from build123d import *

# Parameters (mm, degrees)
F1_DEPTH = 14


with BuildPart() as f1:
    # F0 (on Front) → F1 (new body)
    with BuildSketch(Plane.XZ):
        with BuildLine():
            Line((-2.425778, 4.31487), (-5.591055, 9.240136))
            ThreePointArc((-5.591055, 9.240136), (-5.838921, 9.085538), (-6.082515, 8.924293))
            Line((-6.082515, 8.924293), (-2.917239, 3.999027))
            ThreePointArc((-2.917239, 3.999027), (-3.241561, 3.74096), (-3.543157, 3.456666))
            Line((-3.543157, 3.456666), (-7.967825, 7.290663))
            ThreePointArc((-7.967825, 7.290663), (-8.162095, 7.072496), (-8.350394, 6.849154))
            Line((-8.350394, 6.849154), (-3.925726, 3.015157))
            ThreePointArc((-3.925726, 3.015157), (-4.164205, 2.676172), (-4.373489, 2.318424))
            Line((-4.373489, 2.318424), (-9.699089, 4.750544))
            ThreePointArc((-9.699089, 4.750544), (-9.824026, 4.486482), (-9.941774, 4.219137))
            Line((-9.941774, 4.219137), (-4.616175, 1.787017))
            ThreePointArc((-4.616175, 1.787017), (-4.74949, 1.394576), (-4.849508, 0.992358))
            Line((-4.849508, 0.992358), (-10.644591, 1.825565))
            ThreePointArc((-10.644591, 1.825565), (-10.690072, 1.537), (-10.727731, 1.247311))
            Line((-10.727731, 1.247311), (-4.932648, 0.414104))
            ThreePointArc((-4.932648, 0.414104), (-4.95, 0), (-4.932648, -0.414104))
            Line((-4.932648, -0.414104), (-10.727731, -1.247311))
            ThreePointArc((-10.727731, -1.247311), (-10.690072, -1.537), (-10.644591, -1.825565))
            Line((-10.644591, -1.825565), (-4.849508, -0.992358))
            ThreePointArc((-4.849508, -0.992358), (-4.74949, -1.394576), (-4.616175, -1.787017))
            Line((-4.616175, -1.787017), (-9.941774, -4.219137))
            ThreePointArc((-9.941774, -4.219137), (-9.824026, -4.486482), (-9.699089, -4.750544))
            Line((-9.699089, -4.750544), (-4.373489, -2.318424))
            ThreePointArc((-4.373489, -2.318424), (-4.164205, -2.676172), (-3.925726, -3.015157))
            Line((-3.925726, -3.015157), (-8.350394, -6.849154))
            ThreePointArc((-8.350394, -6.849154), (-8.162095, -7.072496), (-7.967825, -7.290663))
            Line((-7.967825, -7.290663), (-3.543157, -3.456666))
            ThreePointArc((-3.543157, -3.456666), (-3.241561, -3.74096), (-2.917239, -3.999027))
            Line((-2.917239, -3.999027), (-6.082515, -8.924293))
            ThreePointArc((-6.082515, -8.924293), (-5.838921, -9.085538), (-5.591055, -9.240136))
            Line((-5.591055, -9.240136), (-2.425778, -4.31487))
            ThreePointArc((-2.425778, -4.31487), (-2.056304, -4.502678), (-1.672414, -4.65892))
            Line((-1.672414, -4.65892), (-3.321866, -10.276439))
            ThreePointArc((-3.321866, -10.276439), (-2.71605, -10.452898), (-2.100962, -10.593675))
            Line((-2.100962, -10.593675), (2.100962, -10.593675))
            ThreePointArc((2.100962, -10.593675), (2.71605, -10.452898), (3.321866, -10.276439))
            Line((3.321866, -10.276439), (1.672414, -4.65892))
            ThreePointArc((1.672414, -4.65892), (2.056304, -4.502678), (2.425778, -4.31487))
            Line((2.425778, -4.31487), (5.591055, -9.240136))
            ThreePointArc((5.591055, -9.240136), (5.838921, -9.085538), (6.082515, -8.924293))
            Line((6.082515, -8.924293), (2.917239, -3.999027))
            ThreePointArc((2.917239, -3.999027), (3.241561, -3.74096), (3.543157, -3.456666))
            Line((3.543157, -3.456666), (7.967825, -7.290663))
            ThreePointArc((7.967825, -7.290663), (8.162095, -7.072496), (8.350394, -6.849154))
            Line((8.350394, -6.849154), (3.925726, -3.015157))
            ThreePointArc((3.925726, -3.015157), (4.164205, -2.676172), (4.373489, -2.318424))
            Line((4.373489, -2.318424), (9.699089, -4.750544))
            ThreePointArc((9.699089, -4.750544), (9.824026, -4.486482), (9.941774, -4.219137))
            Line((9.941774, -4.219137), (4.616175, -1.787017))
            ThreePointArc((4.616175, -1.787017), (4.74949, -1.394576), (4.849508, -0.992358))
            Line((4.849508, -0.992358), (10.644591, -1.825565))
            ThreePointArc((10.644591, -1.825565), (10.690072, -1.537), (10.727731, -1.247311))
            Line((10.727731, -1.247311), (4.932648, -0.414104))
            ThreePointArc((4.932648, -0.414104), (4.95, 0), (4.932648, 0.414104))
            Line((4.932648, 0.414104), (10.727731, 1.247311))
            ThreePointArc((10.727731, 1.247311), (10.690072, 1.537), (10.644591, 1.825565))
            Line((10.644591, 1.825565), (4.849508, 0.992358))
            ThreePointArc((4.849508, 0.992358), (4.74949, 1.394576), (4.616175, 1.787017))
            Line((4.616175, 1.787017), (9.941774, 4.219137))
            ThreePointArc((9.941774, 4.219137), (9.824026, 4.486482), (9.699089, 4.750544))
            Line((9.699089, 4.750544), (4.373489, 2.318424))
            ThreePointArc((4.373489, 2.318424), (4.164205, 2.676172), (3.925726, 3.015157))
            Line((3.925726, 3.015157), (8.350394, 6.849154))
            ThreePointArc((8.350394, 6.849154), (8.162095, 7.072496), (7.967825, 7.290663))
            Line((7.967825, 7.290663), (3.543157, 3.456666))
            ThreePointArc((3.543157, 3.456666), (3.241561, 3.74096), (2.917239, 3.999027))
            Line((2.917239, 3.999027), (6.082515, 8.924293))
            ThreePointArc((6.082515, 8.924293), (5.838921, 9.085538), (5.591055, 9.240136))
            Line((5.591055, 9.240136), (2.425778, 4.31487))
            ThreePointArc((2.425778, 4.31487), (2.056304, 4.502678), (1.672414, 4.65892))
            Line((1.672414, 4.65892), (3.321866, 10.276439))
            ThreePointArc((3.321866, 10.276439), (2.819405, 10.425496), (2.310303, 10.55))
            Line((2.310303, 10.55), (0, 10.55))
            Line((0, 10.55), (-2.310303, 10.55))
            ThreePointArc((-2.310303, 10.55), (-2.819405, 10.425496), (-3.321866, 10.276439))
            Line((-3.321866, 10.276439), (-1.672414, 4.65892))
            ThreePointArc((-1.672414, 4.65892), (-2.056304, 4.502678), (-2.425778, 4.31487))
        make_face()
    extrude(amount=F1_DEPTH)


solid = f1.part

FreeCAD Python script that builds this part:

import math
import FreeCAD as App
import Part
import Sketcher

doc = App.newDocument("Part")
params = doc.addObject("Spreadsheet::Sheet", "Params")
for row, (alias, value) in enumerate([
    ("pad1_length", "14 mm"),
], start=1):
    params.set(f"A{row}", alias)
    params.set(f"B{row}", "=" + value)
    params.setAlias(f"B{row}", alias)

body = doc.addObject("PartDesign::Body", "Body")

sketch1 = doc.addObject("Sketcher::SketchObject", "Sketch")
body.addObject(sketch1)
sketch1.AttachmentSupport = (doc.XZ_Plane, [""])
sketch1.MapMode = "FlatFace"
sketch1.addGeometry(Part.LineSegment(App.Vector(-2.425778, 4.31487, 0), App.Vector(-5.591055, 9.240136, 0)), False)
sketch1.addGeometry(Part.ArcOfCircle(Part.Circle(App.Vector(0.000189, -0.00027, 0), App.Vector(0, 0, 1), 10.800329), math.radians(121.177561), math.radians(124.277122)), False)
sketch1.addGeometry(Part.LineSegment(App.Vector(-6.082515, 8.924293, 0), App.Vector(-2.917239, 3.999027, 0)), False)
sketch1.addGeometry(Part.ArcOfCircle(Part.Circle(App.Vector(0.000026, -0.000031, 0), App.Vector(0, 0, 1), 4.950041), math.radians(126.110304), math.radians(135.707874)), False)
sketch1.addGeometry(Part.LineSegment(App.Vector(-3.543157, 3.456666, 0), App.Vector(-7.967825, 7.290663, 0)), False)
sketch1.addGeometry(Part.ArcOfCircle(Part.Circle(App.Vector(0.000187, -0.000148, 0), App.Vector(0, 0, 1), 10.800238), math.radians(137.54117), math.radians(140.640755)), False)
sketch1.addGeometry(Part.LineSegment(App.Vector(-8.350394, 6.849154, 0), App.Vector(-3.925726, 3.015157, 0)), False)
sketch1.addGeometry(Part.ArcOfCircle(Part.Circle(App.Vector(-0.00009, 0.000058, 0), App.Vector(0, 0, 1), 4.949892), math.radians(142.473806), math.radians(152.071662)), False)
sketch1.addGeometry(Part.LineSegment(App.Vector(-4.373489, 2.318424, 0), App.Vector(-9.699089, 4.750544, 0)), False)
sketch1.addGeometry(Part.ArcOfCircle(Part.Circle(App.Vector(-0.001847, 0.000852, 0), App.Vector(0, 0, 1), 10.797966), math.radians(153.904466), math.radians(157.004704)), False)
sketch1.addGeometry(Part.LineSegment(App.Vector(-9.941774, 4.219137, 0), App.Vector(-4.616175, 1.787017, 0)), False)
sketch1.addGeometry(Part.ArcOfCircle(Part.Circle(App.Vector(0.00012, -0.000036, 0), App.Vector(0, 0, 1), 4.950125), math.radians(158.837662), math.radians(168.435057)), False)
sketch1.addGeometry(Part.LineSegment(App.Vector(-4.849508, 0.992358, 0), App.Vector(-10.644591, 1.825565, 0)), False)
sketch1.addGeometry(Part.ArcOfCircle(Part.Circle(App.Vector(-0.000905, 0.000137, 0), App.Vector(0, 0, 1), 10.799085), math.radians(170.268258), math.radians(173.368178)), False)
sketch1.addGeometry(Part.LineSegment(App.Vector(-10.727731, 1.247311, 0), App.Vector(-4.932648, 0.414104, 0)), False)
sketch1.addGeometry(Part.ArcOfCircle(Part.Circle(App.Vector(-0.000046, 0, 0), App.Vector(0, 0, 1), 4.949954), math.radians(175.201133), math.radians(184.798867)), False)
sketch1.addGeometry(Part.LineSegment(App.Vector(-4.932648, -0.414104, 0), App.Vector(-10.727731, -1.247311, 0)), False)
sketch1.addGeometry(Part.ArcOfCircle(Part.Circle(App.Vector(-0.000905, -0.000137, 0), App.Vector(0, 0, 1), 10.799085), math.radians(-173.368178), math.radians(-170.268258)), False)
sketch1.addGeometry(Part.LineSegment(App.Vector(-10.644591, -1.825565, 0), App.Vector(-4.849508, -0.992358, 0)), False)
sketch1.addGeometry(Part.ArcOfCircle(Part.Circle(App.Vector(0.00012, 0.000036, 0), App.Vector(0, 0, 1), 4.950125), math.radians(-168.435057), math.radians(-158.837662)), False)
sketch1.addGeometry(Part.LineSegment(App.Vector(-4.616175, -1.787017, 0), App.Vector(-9.941774, -4.219137, 0)), False)
sketch1.addGeometry(Part.ArcOfCircle(Part.Circle(App.Vector(-0.001847, -0.000852, 0), App.Vector(0, 0, 1), 10.797966), math.radians(-157.004704), math.radians(-153.904466)), False)
sketch1.addGeometry(Part.LineSegment(App.Vector(-9.699089, -4.750544, 0), App.Vector(-4.373489, -2.318424, 0)), False)
sketch1.addGeometry(Part.ArcOfCircle(Part.Circle(App.Vector(-0.00009, -0.000058, 0), App.Vector(0, 0, 1), 4.949892), math.radians(-152.071662), math.radians(-142.473806)), False)
sketch1.addGeometry(Part.LineSegment(App.Vector(-3.925726, -3.015157, 0), App.Vector(-8.350394, -6.849154, 0)), False)
sketch1.addGeometry(Part.ArcOfCircle(Part.Circle(App.Vector(0.000187, 0.000148, 0), App.Vector(0, 0, 1), 10.800238), math.radians(-140.640755), math.radians(-137.54117)), False)
sketch1.addGeometry(Part.LineSegment(App.Vector(-7.967825, -7.290663, 0), App.Vector(-3.543157, -3.456666, 0)), False)
sketch1.addGeometry(Part.ArcOfCircle(Part.Circle(App.Vector(0.000026, 0.000031, 0), App.Vector(0, 0, 1), 4.950041), math.radians(-135.707874), math.radians(-126.110304)), False)
sketch1.addGeometry(Part.LineSegment(App.Vector(-2.917239, -3.999027, 0), App.Vector(-6.082515, -8.924293, 0)), False)
sketch1.addGeometry(Part.ArcOfCircle(Part.Circle(App.Vector(0.000189, 0.00027, 0), App.Vector(0, 0, 1), 10.800329), math.radians(-124.277122), math.radians(-121.177561)), False)
sketch1.addGeometry(Part.LineSegment(App.Vector(-5.591055, -9.240136, 0), App.Vector(-2.425778, -4.31487, 0)), False)
sketch1.addGeometry(Part.ArcOfCircle(Part.Circle(App.Vector(0.000094, 0.000203, 0), App.Vector(0, 0, 1), 4.950224), math.radians(-119.34407), math.radians(-109.746863)), False)
sketch1.addGeometry(Part.LineSegment(App.Vector(-1.672414, -4.65892, 0), App.Vector(-3.321866, -10.276439, 0)), False)
sketch1.addGeometry(Part.ArcOfCircle(Part.Circle(App.Vector(-0.000085, -0.000326, 0), App.Vector(0, 0, 1), 10.799663), math.radians(-107.913565), math.radians(-101.217369)), False)
sketch1.addGeometry(Part.LineSegment(App.Vector(-2.100962, -10.593675, 0), App.Vector(2.100962, -10.593675, 0)), False)
sketch1.addGeometry(Part.ArcOfCircle(Part.Circle(App.Vector(0.000085, -0.000326, 0), App.Vector(0, 0, 1), 10.799663), math.radians(-78.782631), math.radians(-72.086435)), False)
sketch1.addGeometry(Part.LineSegment(App.Vector(3.321866, -10.276439, 0), App.Vector(1.672414, -4.65892, 0)), False)
sketch1.addGeometry(Part.ArcOfCircle(Part.Circle(App.Vector(-0.000094, 0.000203, 0), App.Vector(0, 0, 1), 4.950224), math.radians(-70.253137), math.radians(-60.65593)), False)
sketch1.addGeometry(Part.LineSegment(App.Vector(2.425778, -4.31487, 0), App.Vector(5.591055, -9.240136, 0)), False)
sketch1.addGeometry(Part.ArcOfCircle(Part.Circle(App.Vector(-0.000189, 0.00027, 0), App.Vector(0, 0, 1), 10.800329), math.radians(-58.822439), math.radians(-55.722878)), False)
sketch1.addGeometry(Part.LineSegment(App.Vector(6.082515, -8.924293, 0), App.Vector(2.917239, -3.999027, 0)), False)
sketch1.addGeometry(Part.ArcOfCircle(Part.Circle(App.Vector(-0.000026, 0.000031, 0), App.Vector(0, 0, 1), 4.950041), math.radians(-53.889696), math.radians(-44.292126)), False)
sketch1.addGeometry(Part.LineSegment(App.Vector(3.543157, -3.456666, 0), App.Vector(7.967825, -7.290663, 0)), False)
sketch1.addGeometry(Part.ArcOfCircle(Part.Circle(App.Vector(-0.000187, 0.000148, 0), App.Vector(0, 0, 1), 10.800238), math.radians(-42.45883), math.radians(-39.359245)), False)
sketch1.addGeometry(Part.LineSegment(App.Vector(8.350394, -6.849154, 0), App.Vector(3.925726, -3.015157, 0)), False)
sketch1.addGeometry(Part.ArcOfCircle(Part.Circle(App.Vector(0.00009, -0.000058, 0), App.Vector(0, 0, 1), 4.949892), math.radians(-37.526194), math.radians(-27.928338)), False)
sketch1.addGeometry(Part.LineSegment(App.Vector(4.373489, -2.318424, 0), App.Vector(9.699089, -4.750544, 0)), False)
sketch1.addGeometry(Part.ArcOfCircle(Part.Circle(App.Vector(0.001847, -0.000852, 0), App.Vector(0, 0, 1), 10.797966), math.radians(-26.095534), math.radians(-22.995296)), False)
sketch1.addGeometry(Part.LineSegment(App.Vector(9.941774, -4.219137, 0), App.Vector(4.616175, -1.787017, 0)), False)
sketch1.addGeometry(Part.ArcOfCircle(Part.Circle(App.Vector(-0.00012, 0.000036, 0), App.Vector(0, 0, 1), 4.950125), math.radians(-21.162338), math.radians(-11.564943)), False)
sketch1.addGeometry(Part.LineSegment(App.Vector(4.849508, -0.992358, 0), App.Vector(10.644591, -1.825565, 0)), False)
sketch1.addGeometry(Part.ArcOfCircle(Part.Circle(App.Vector(0.000905, -0.000137, 0), App.Vector(0, 0, 1), 10.799085), math.radians(-9.731742), math.radians(-6.631822)), False)
sketch1.addGeometry(Part.LineSegment(App.Vector(10.727731, -1.247311, 0), App.Vector(4.932648, -0.414104, 0)), False)
sketch1.addGeometry(Part.ArcOfCircle(Part.Circle(App.Vector(0.000046, 0, 0), App.Vector(0, 0, 1), 4.949954), math.radians(-4.798867), math.radians(4.798867)), False)
sketch1.addGeometry(Part.LineSegment(App.Vector(4.932648, 0.414104, 0), App.Vector(10.727731, 1.247311, 0)), False)
sketch1.addGeometry(Part.ArcOfCircle(Part.Circle(App.Vector(0.000905, 0.000137, 0), App.Vector(0, 0, 1), 10.799085), math.radians(6.631822), math.radians(9.731742)), False)
sketch1.addGeometry(Part.LineSegment(App.Vector(10.644591, 1.825565, 0), App.Vector(4.849508, 0.992358, 0)), False)
sketch1.addGeometry(Part.ArcOfCircle(Part.Circle(App.Vector(-0.00012, -0.000036, 0), App.Vector(0, 0, 1), 4.950125), math.radians(11.564943), math.radians(21.162338)), False)
sketch1.addGeometry(Part.LineSegment(App.Vector(4.616175, 1.787017, 0), App.Vector(9.941774, 4.219137, 0)), False)
sketch1.addGeometry(Part.ArcOfCircle(Part.Circle(App.Vector(0.001847, 0.000852, 0), App.Vector(0, 0, 1), 10.797966), math.radians(22.995296), math.radians(26.095534)), False)
sketch1.addGeometry(Part.LineSegment(App.Vector(9.699089, 4.750544, 0), App.Vector(4.373489, 2.318424, 0)), False)
sketch1.addGeometry(Part.ArcOfCircle(Part.Circle(App.Vector(0.00009, 0.000058, 0), App.Vector(0, 0, 1), 4.949892), math.radians(27.928338), math.radians(37.526194)), False)
sketch1.addGeometry(Part.LineSegment(App.Vector(3.925726, 3.015157, 0), App.Vector(8.350394, 6.849154, 0)), False)
sketch1.addGeometry(Part.ArcOfCircle(Part.Circle(App.Vector(-0.000187, -0.000148, 0), App.Vector(0, 0, 1), 10.800238), math.radians(39.359245), math.radians(42.45883)), False)
sketch1.addGeometry(Part.LineSegment(App.Vector(7.967825, 7.290663, 0), App.Vector(3.543157, 3.456666, 0)), False)
sketch1.addGeometry(Part.ArcOfCircle(Part.Circle(App.Vector(-0.000026, -0.000031, 0), App.Vector(0, 0, 1), 4.950041), math.radians(44.292126), math.radians(53.889696)), False)
sketch1.addGeometry(Part.LineSegment(App.Vector(2.917239, 3.999027, 0), App.Vector(6.082515, 8.924293, 0)), False)
sketch1.addGeometry(Part.ArcOfCircle(Part.Circle(App.Vector(-0.000189, -0.00027, 0), App.Vector(0, 0, 1), 10.800329), math.radians(55.722878), math.radians(58.822439)), False)
sketch1.addGeometry(Part.LineSegment(App.Vector(5.591055, 9.240136, 0), App.Vector(2.425778, 4.31487, 0)), False)
sketch1.addGeometry(Part.ArcOfCircle(Part.Circle(App.Vector(-0.000094, -0.000203, 0), App.Vector(0, 0, 1), 4.950224), math.radians(60.65593), math.radians(70.253137)), False)
sketch1.addGeometry(Part.LineSegment(App.Vector(1.672414, 4.65892, 0), App.Vector(3.321866, 10.276439, 0)), False)
sketch1.addGeometry(Part.ArcOfCircle(Part.Circle(App.Vector(0.000154, 0.000582, 0), App.Vector(0, 0, 1), 10.799399), math.radians(72.086363), math.radians(77.648141)), False)
sketch1.addGeometry(Part.LineSegment(App.Vector(2.310303, 10.55, 0), App.Vector(-2.310303, 10.55, 0)), False)
sketch1.addGeometry(Part.ArcOfCircle(Part.Circle(App.Vector(-0.000154, 0.000582, 0), App.Vector(0, 0, 1), 10.799399), math.radians(102.351859), math.radians(107.913637)), False)
sketch1.addGeometry(Part.LineSegment(App.Vector(-3.321866, 10.276439, 0), App.Vector(-1.672414, 4.65892, 0)), False)
sketch1.addGeometry(Part.ArcOfCircle(Part.Circle(App.Vector(0.000094, -0.000203, 0), App.Vector(0, 0, 1), 4.950224), math.radians(109.746863), math.radians(119.34407)), False)
sketch1.addConstraint(Sketcher.Constraint("Coincident", 0, 2, 1, 1))
sketch1.addConstraint(Sketcher.Constraint("Coincident", 1, 2, 2, 1))
sketch1.addConstraint(Sketcher.Constraint("Coincident", 2, 2, 3, 1))
sketch1.addConstraint(Sketcher.Constraint("Coincident", 3, 2, 4, 1))
sketch1.addConstraint(Sketcher.Constraint("Coincident", 4, 2, 5, 1))
sketch1.addConstraint(Sketcher.Constraint("Coincident", 5, 2, 6, 1))
sketch1.addConstraint(Sketcher.Constraint("Coincident", 6, 2, 7, 1))
sketch1.addConstraint(Sketcher.Constraint("Coincident", 7, 2, 8, 1))
sketch1.addConstraint(Sketcher.Constraint("Coincident", 8, 2, 9, 1))
sketch1.addConstraint(Sketcher.Constraint("Coincident", 9, 2, 10, 1))
sketch1.addConstraint(Sketcher.Constraint("Coincident", 10, 2, 11, 1))
sketch1.addConstraint(Sketcher.Constraint("Coincident", 11, 2, 12, 1))
sketch1.addConstraint(Sketcher.Constraint("Coincident", 12, 2, 13, 1))
sketch1.addConstraint(Sketcher.Constraint("Coincident", 13, 2, 14, 1))
sketch1.addConstraint(Sketcher.Constraint("Coincident", 14, 2, 15, 1))
sketch1.addConstraint(Sketcher.Constraint("Coincident", 15, 2, 16, 1))
sketch1.addConstraint(Sketcher.Constraint("Coincident", 16, 2, 17, 1))
sketch1.addConstraint(Sketcher.Constraint("Coincident", 17, 2, 18, 1))
sketch1.addConstraint(Sketcher.Constraint("Coincident", 18, 2, 19, 1))
sketch1.addConstraint(Sketcher.Constraint("Coincident", 19, 2, 20, 1))
sketch1.addConstraint(Sketcher.Constraint("Coincident", 20, 2, 21, 1))
sketch1.addConstraint(Sketcher.Constraint("Coincident", 21, 2, 22, 1))
sketch1.addConstraint(Sketcher.Constraint("Coincident", 22, 2, 23, 1))
sketch1.addConstraint(Sketcher.Constraint("Coincident", 23, 2, 24, 1))
sketch1.addConstraint(Sketcher.Constraint("Coincident", 24, 2, 25, 1))
sketch1.addConstraint(Sketcher.Constraint("Coincident", 25, 2, 26, 1))
sketch1.addConstraint(Sketcher.Constraint("Coincident", 26, 2, 27, 1))
sketch1.addConstraint(Sketcher.Constraint("Coincident", 27, 2, 28, 1))
sketch1.addConstraint(Sketcher.Constraint("Coincident", 28, 2, 29, 1))
sketch1.addConstraint(Sketcher.Constraint("Coincident", 29, 2, 30, 1))
sketch1.addConstraint(Sketcher.Constraint("Coincident", 30, 2, 31, 1))
sketch1.addConstraint(Sketcher.Constraint("Coincident", 31, 2, 32, 1))
sketch1.addConstraint(Sketcher.Constraint("Coincident", 32, 2, 33, 1))
sketch1.addConstraint(Sketcher.Constraint("Coincident", 33, 2, 34, 1))
sketch1.addConstraint(Sketcher.Constraint("Coincident", 34, 2, 35, 1))
sketch1.addConstraint(Sketcher.Constraint("Coincident", 35, 2, 36, 1))
sketch1.addConstraint(Sketcher.Constraint("Coincident", 36, 2, 37, 1))
sketch1.addConstraint(Sketcher.Constraint("Coincident", 37, 2, 38, 1))
sketch1.addConstraint(Sketcher.Constraint("Coincident", 38, 2, 39, 1))
sketch1.addConstraint(Sketcher.Constraint("Coincident", 39, 2, 40, 1))
sketch1.addConstraint(Sketcher.Constraint("Coincident", 40, 2, 41, 1))
sketch1.addConstraint(Sketcher.Constraint("Coincident", 41, 2, 42, 1))
sketch1.addConstraint(Sketcher.Constraint("Coincident", 42, 2, 43, 1))
sketch1.addConstraint(Sketcher.Constraint("Coincident", 43, 2, 44, 1))
sketch1.addConstraint(Sketcher.Constraint("Coincident", 44, 2, 45, 1))
sketch1.addConstraint(Sketcher.Constraint("Coincident", 45, 2, 46, 1))
sketch1.addConstraint(Sketcher.Constraint("Coincident", 46, 2, 47, 1))
sketch1.addConstraint(Sketcher.Constraint("Coincident", 47, 2, 48, 1))
sketch1.addConstraint(Sketcher.Constraint("Coincident", 48, 2, 49, 1))
sketch1.addConstraint(Sketcher.Constraint("Coincident", 49, 2, 50, 1))
sketch1.addConstraint(Sketcher.Constraint("Coincident", 50, 2, 51, 1))
sketch1.addConstraint(Sketcher.Constraint("Coincident", 51, 2, 52, 1))
sketch1.addConstraint(Sketcher.Constraint("Coincident", 52, 2, 53, 1))
sketch1.addConstraint(Sketcher.Constraint("Coincident", 53, 2, 54, 1))
sketch1.addConstraint(Sketcher.Constraint("Coincident", 54, 2, 55, 1))
sketch1.addConstraint(Sketcher.Constraint("Coincident", 55, 2, 56, 1))
sketch1.addConstraint(Sketcher.Constraint("Coincident", 56, 2, 57, 1))
sketch1.addConstraint(Sketcher.Constraint("Coincident", 57, 2, 58, 1))
sketch1.addConstraint(Sketcher.Constraint("Coincident", 58, 2, 59, 1))
sketch1.addConstraint(Sketcher.Constraint("Coincident", 59, 2, 60, 1))
sketch1.addConstraint(Sketcher.Constraint("Coincident", 60, 2, 61, 1))
sketch1.addConstraint(Sketcher.Constraint("Coincident", 61, 2, 62, 1))
sketch1.addConstraint(Sketcher.Constraint("Coincident", 62, 2, 63, 1))
sketch1.addConstraint(Sketcher.Constraint("Coincident", 63, 2, 64, 1))
sketch1.addConstraint(Sketcher.Constraint("Coincident", 64, 2, 65, 1))
sketch1.addConstraint(Sketcher.Constraint("Coincident", 65, 2, 66, 1))
sketch1.addConstraint(Sketcher.Constraint("Coincident", 66, 2, 67, 1))
sketch1.addConstraint(Sketcher.Constraint("Coincident", 67, 2, 68, 1))
sketch1.addConstraint(Sketcher.Constraint("Coincident", 68, 2, 69, 1))
sketch1.addConstraint(Sketcher.Constraint("Coincident", 69, 2, 70, 1))
sketch1.addConstraint(Sketcher.Constraint("Coincident", 70, 2, 71, 1))
sketch1.addConstraint(Sketcher.Constraint("Coincident", 71, 2, 72, 1))
sketch1.addConstraint(Sketcher.Constraint("Coincident", 72, 2, 73, 1))
sketch1.addConstraint(Sketcher.Constraint("Coincident", 73, 2, 74, 1))
sketch1.addConstraint(Sketcher.Constraint("Coincident", 74, 2, 75, 1))
sketch1.addConstraint(Sketcher.Constraint("Coincident", 75, 2, 0, 1))
sketch1.addConstraint(Sketcher.Constraint("Horizontal", 34))
sketch1.addConstraint(Sketcher.Constraint("Horizontal", 72))
sketch1.addConstraint(Sketcher.Constraint("PointOnObject", 15, 3, -1))
sketch1.addConstraint(Sketcher.Constraint("PointOnObject", 53, 3, -1))
sketch1.addConstraint(Sketcher.Constraint("Radius", 71, 10.799399))
sketch1.addConstraint(Sketcher.Constraint("Radius", 73, 10.799399))
sketch1.addConstraint(Sketcher.Constraint("DistanceY", -1, 1, 71, 2, 10.55))
sketch1.addConstraint(Sketcher.Constraint("Radius", 1, 10.800329))
sketch1.addConstraint(Sketcher.Constraint("Radius", 3, 4.950041))
sketch1.addConstraint(Sketcher.Constraint("Radius", 27, 4.950041))
sketch1.addConstraint(Sketcher.Constraint("Radius", 29, 10.800329))
sketch1.addConstraint(Sketcher.Constraint("Radius", 39, 10.800329))
sketch1.addConstraint(Sketcher.Constraint("Radius", 41, 4.950041))
sketch1.addConstraint(Sketcher.Constraint("Radius", 65, 4.950041))
sketch1.addConstraint(Sketcher.Constraint("Radius", 67, 10.800329))
sketch1.addConstraint(Sketcher.Constraint("Radius", 5, 10.800238))
sketch1.addConstraint(Sketcher.Constraint("Radius", 7, 4.949892))
sketch1.addConstraint(Sketcher.Constraint("Radius", 9, 10.797966))
sketch1.addConstraint(Sketcher.Constraint("Radius", 11, 4.950125))
sketch1.addConstraint(Sketcher.Constraint("Radius", 13, 10.799085))
sketch1.addConstraint(Sketcher.Constraint("Radius", 15, 4.949954))
sketch1.addConstraint(Sketcher.Constraint("Radius", 17, 10.799085))
sketch1.addConstraint(Sketcher.Constraint("Radius", 19, 4.950125))
sketch1.addConstraint(Sketcher.Constraint("Radius", 21, 10.797966))
sketch1.addConstraint(Sketcher.Constraint("Radius", 23, 4.949892))
sketch1.addConstraint(Sketcher.Constraint("Radius", 25, 10.800238))
sketch1.addConstraint(Sketcher.Constraint("Radius", 31, 4.950224))
sketch1.addConstraint(Sketcher.Constraint("Radius", 33, 10.799663))
sketch1.addConstraint(Sketcher.Constraint("Radius", 35, 10.799663))
sketch1.addConstraint(Sketcher.Constraint("Radius", 37, 4.950224))
sketch1.addConstraint(Sketcher.Constraint("Radius", 43, 10.800238))
sketch1.addConstraint(Sketcher.Constraint("Radius", 45, 4.949892))
sketch1.addConstraint(Sketcher.Constraint("Radius", 47, 10.797966))
sketch1.addConstraint(Sketcher.Constraint("Radius", 49, 4.950125))
sketch1.addConstraint(Sketcher.Constraint("Radius", 51, 10.799085))
sketch1.addConstraint(Sketcher.Constraint("Radius", 53, 4.949954))
sketch1.addConstraint(Sketcher.Constraint("Radius", 55, 10.799085))
sketch1.addConstraint(Sketcher.Constraint("Radius", 57, 4.950125))
sketch1.addConstraint(Sketcher.Constraint("Radius", 59, 10.797966))
sketch1.addConstraint(Sketcher.Constraint("Radius", 61, 4.949892))
sketch1.addConstraint(Sketcher.Constraint("Radius", 63, 10.800238))
sketch1.addConstraint(Sketcher.Constraint("Radius", 69, 4.950224))
sketch1.addConstraint(Sketcher.Constraint("Radius", 75, 4.950224))
sketch1.addConstraint(Sketcher.Constraint("DistanceX", 34, 1, 34, 2, 4.201924))
sketch1.addConstraint(Sketcher.Constraint("DistanceX", 72, 2, 72, 1, 4.620606))
sketch1.addConstraint(Sketcher.Constraint("DistanceX", -1, 1, 1, 3, 0.000189))
sketch1.addConstraint(Sketcher.Constraint("DistanceY", 1, 3, -1, 1, 0.00027))
sketch1.addConstraint(Sketcher.Constraint("DistanceY", 5, 3, -1, 1, 0.000148))
sketch1.addConstraint(Sketcher.Constraint("DistanceY", -1, 1, 9, 3, 0.000852))
sketch1.addConstraint(Sketcher.Constraint("DistanceX", -1, 1, 11, 3, 0.00012))
sketch1.addConstraint(Sketcher.Constraint("DistanceX", -1, 1, 19, 3, 0.00012))
sketch1.addConstraint(Sketcher.Constraint("DistanceY", 21, 3, -1, 1, 0.000852))
sketch1.addConstraint(Sketcher.Constraint("DistanceY", -1, 1, 25, 3, 0.000148))
sketch1.addConstraint(Sketcher.Constraint("DistanceX", -1, 1, 29, 3, 0.000189))
sketch1.addConstraint(Sketcher.Constraint("DistanceY", -1, 1, 29, 3, 0.00027))
sketch1.addConstraint(Sketcher.Constraint("DistanceX", 39, 3, -1, 1, 0.000189))
sketch1.addConstraint(Sketcher.Constraint("DistanceY", -1, 1, 39, 3, 0.00027))
sketch1.addConstraint(Sketcher.Constraint("DistanceY", -1, 1, 43, 3, 0.000148))
sketch1.addConstraint(Sketcher.Constraint("DistanceY", 47, 3, -1, 1, 0.000852))
sketch1.addConstraint(Sketcher.Constraint("DistanceX", 49, 3, -1, 1, 0.00012))
sketch1.addConstraint(Sketcher.Constraint("DistanceX", 57, 3, -1, 1, 0.00012))
sketch1.addConstraint(Sketcher.Constraint("DistanceY", -1, 1, 59, 3, 0.000852))
sketch1.addConstraint(Sketcher.Constraint("DistanceY", 63, 3, -1, 1, 0.000148))
sketch1.addConstraint(Sketcher.Constraint("DistanceX", 67, 3, -1, 1, 0.000189))
sketch1.addConstraint(Sketcher.Constraint("DistanceY", 67, 3, -1, 1, 0.00027))
sketch1.addConstraint(Sketcher.Constraint("DistanceY", -1, 1, 71, 3, 0.000582))
sketch1.addConstraint(Sketcher.Constraint("DistanceY", -1, 1, 73, 3, 0.000582))
sketch1.addConstraint(Sketcher.Constraint("DistanceX", 2, 2, -1, 1, 2.917239))
sketch1.addConstraint(Sketcher.Constraint("DistanceX", 7, 2, -1, 1, 4.373489))
sketch1.addConstraint(Sketcher.Constraint("DistanceX", 8, 2, -1, 1, 9.699089))
sketch1.addConstraint(Sketcher.Constraint("DistanceX", 11, 2, -1, 1, 4.849508))
sketch1.addConstraint(Sketcher.Constraint("DistanceY", -1, 1, 11, 2, 0.992358))
sketch1.addConstraint(Sketcher.Constraint("DistanceX", 12, 2, -1, 1, 10.644591))
sketch1.addConstraint(Sketcher.Constraint("DistanceX", 13, 2, -1, 1, 10.727731))
sketch1.addConstraint(Sketcher.Constraint("DistanceY", -1, 1, 13, 2, 1.247311))
sketch1.addConstraint(Sketcher.Constraint("DistanceX", 14, 2, -1, 1, 4.932648))
sketch1.addConstraint(Sketcher.Constraint("DistanceX", 15, 2, -1, 1, 4.932648))
sketch1.addConstraint(Sketcher.Constraint("DistanceX", 16, 2, -1, 1, 10.727731))
sketch1.addConstraint(Sketcher.Constraint("DistanceY", 16, 2, -1, 1, 1.247311))
sketch1.addConstraint(Sketcher.Constraint("DistanceX", 17, 2, -1, 1, 10.644591))
sketch1.addConstraint(Sketcher.Constraint("DistanceX", 21, 2, -1, 1, 9.699089))
sketch1.addConstraint(Sketcher.Constraint("DistanceX", 22, 2, -1, 1, 4.373489))
sketch1.addConstraint(Sketcher.Constraint("DistanceX", 27, 2, -1, 1, 2.917239))
sketch1.addConstraint(Sketcher.Constraint("DistanceX", 30, 2, -1, 1, 2.425778))
sketch1.addConstraint(Sketcher.Constraint("DistanceY", 30, 2, -1, 1, 4.31487))
sketch1.addConstraint(Sketcher.Constraint("DistanceY", 31, 2, -1, 1, 4.65892))
sketch1.addConstraint(Sketcher.Constraint("DistanceY", 32, 2, -1, 1, 10.276439))
sketch1.addConstraint(Sketcher.Constraint("DistanceX", -1, 1, 34, 2, 2.100962))
sketch1.addConstraint(Sketcher.Constraint("DistanceY", 35, 2, -1, 1, 10.276439))
sketch1.addConstraint(Sketcher.Constraint("DistanceY", 36, 2, -1, 1, 4.65892))
sketch1.addConstraint(Sketcher.Constraint("DistanceY", 37, 2, -1, 1, 4.31487))
sketch1.addConstraint(Sketcher.Constraint("DistanceX", -1, 1, 40, 2, 2.917239))
sketch1.addConstraint(Sketcher.Constraint("DistanceX", -1, 1, 45, 2, 4.373489))
sketch1.addConstraint(Sketcher.Constraint("DistanceX", -1, 1, 46, 2, 9.699089))
sketch1.addConstraint(Sketcher.Constraint("DistanceX", -1, 1, 49, 2, 4.849508))
sketch1.addConstraint(Sketcher.Constraint("DistanceY", 49, 2, -1, 1, 0.992358))
sketch1.addConstraint(Sketcher.Constraint("DistanceX", -1, 1, 50, 2, 10.644591))
sketch1.addConstraint(Sketcher.Constraint("DistanceX", -1, 1, 51, 2, 10.727731))
sketch1.addConstraint(Sketcher.Constraint("DistanceY", 51, 2, -1, 1, 1.247311))
sketch1.addConstraint(Sketcher.Constraint("DistanceX", -1, 1, 52, 2, 4.932648))
sketch1.addConstraint(Sketcher.Constraint("DistanceX", -1, 1, 53, 2, 4.932648))
sketch1.addConstraint(Sketcher.Constraint("DistanceX", -1, 1, 54, 2, 10.727731))
sketch1.addConstraint(Sketcher.Constraint("DistanceY", -1, 1, 54, 2, 1.247311))
sketch1.addConstraint(Sketcher.Constraint("DistanceX", -1, 1, 55, 2, 10.644591))
sketch1.addConstraint(Sketcher.Constraint("DistanceX", -1, 1, 59, 2, 9.699089))
sketch1.addConstraint(Sketcher.Constraint("DistanceX", -1, 1, 60, 2, 4.373489))
sketch1.addConstraint(Sketcher.Constraint("DistanceX", -1, 1, 65, 2, 2.917239))
sketch1.addConstraint(Sketcher.Constraint("DistanceX", -1, 1, 68, 2, 2.425778))
sketch1.addConstraint(Sketcher.Constraint("DistanceY", -1, 1, 68, 2, 4.31487))
sketch1.addConstraint(Sketcher.Constraint("DistanceY", -1, 1, 69, 2, 4.65892))
sketch1.addConstraint(Sketcher.Constraint("DistanceY", -1, 1, 70, 2, 10.276439))
sketch1.addConstraint(Sketcher.Constraint("DistanceY", -1, 1, 73, 2, 10.276439))
sketch1.addConstraint(Sketcher.Constraint("DistanceY", -1, 1, 74, 2, 4.65892))
sketch1.addConstraint(Sketcher.Constraint("DistanceY", -1, 1, 75, 2, 4.31487))
sketch1.addConstraint(Sketcher.Constraint("Distance", 0, 5.854675))
sketch1.addConstraint(Sketcher.Constraint("Distance", 2, 5.854675))
sketch1.addConstraint(Sketcher.Constraint("Distance", 4, 5.854675))
sketch1.addConstraint(Sketcher.Constraint("Distance", 6, 5.854675))
sketch1.addConstraint(Sketcher.Constraint("Distance", 8, 5.854675))
sketch1.addConstraint(Sketcher.Constraint("Distance", 10, 5.854674))
sketch1.addConstraint(Sketcher.Constraint("Distance", 12, 5.854675))
sketch1.addConstraint(Sketcher.Constraint("Distance", 14, 5.854675))
sketch1.addConstraint(Sketcher.Constraint("Distance", 18, 5.854675))
sketch1.addConstraint(Sketcher.Constraint("Distance", 20, 5.854674))
sketch1.addConstraint(Sketcher.Constraint("Distance", 22, 5.854675))
sketch1.addConstraint(Sketcher.Constraint("Distance", 24, 5.854675))
sketch1.addConstraint(Sketcher.Constraint("Distance", 26, 5.854675))
sketch1.addConstraint(Sketcher.Constraint("Distance", 28, 5.854675))
sketch1.addConstraint(Sketcher.Constraint("Distance", 30, 5.854675))
sketch1.addConstraint(Sketcher.Constraint("Distance", 32, 5.854674))
sketch1.addConstraint(Sketcher.Constraint("Distance", 36, 5.854674))
sketch1.addConstraint(Sketcher.Constraint("Distance", 38, 5.854675))
sketch1.addConstraint(Sketcher.Constraint("Distance", 40, 5.854675))
sketch1.addConstraint(Sketcher.Constraint("Distance", 42, 5.854675))
sketch1.addConstraint(Sketcher.Constraint("Distance", 44, 5.854675))
sketch1.addConstraint(Sketcher.Constraint("Distance", 46, 5.854675))
sketch1.addConstraint(Sketcher.Constraint("Distance", 48, 5.854674))
sketch1.addConstraint(Sketcher.Constraint("Distance", 50, 5.854675))
sketch1.addConstraint(Sketcher.Constraint("Distance", 52, 5.854675))
sketch1.addConstraint(Sketcher.Constraint("Distance", 56, 5.854675))
sketch1.addConstraint(Sketcher.Constraint("Distance", 58, 5.854674))
sketch1.addConstraint(Sketcher.Constraint("Distance", 60, 5.854675))
sketch1.addConstraint(Sketcher.Constraint("Distance", 62, 5.854675))
sketch1.addConstraint(Sketcher.Constraint("Distance", 64, 5.854675))
sketch1.addConstraint(Sketcher.Constraint("Distance", 66, 5.854675))
sketch1.addConstraint(Sketcher.Constraint("Distance", 68, 5.854675))
sketch1.addConstraint(Sketcher.Constraint("Distance", 70, 5.854674))
sketch1.addConstraint(Sketcher.Constraint("Distance", 74, 5.854674))
sketch1.addConstraint(Sketcher.Constraint("DistanceX", -1, 1, 5, 3, 0.000187))
sketch1.addConstraint(Sketcher.Constraint("DistanceX", 9, 3, -1, 1, 0.001847))
sketch1.addConstraint(Sketcher.Constraint("DistanceX", 17, 3, -1, 1, 0.000905))
sketch1.addConstraint(Sketcher.Constraint("DistanceX", 21, 3, -1, 1, 0.001847))
sketch1.addConstraint(Sketcher.Constraint("DistanceX", -1, 1, 25, 3, 0.000187))
sketch1.addConstraint(Sketcher.Constraint("DistanceY", -1, 1, 31, 3, 0.000203))
sketch1.addConstraint(Sketcher.Constraint("DistanceY", 33, 3, -1, 1, 0.000326))
sketch1.addConstraint(Sketcher.Constraint("DistanceY", 35, 3, -1, 1, 0.000326))
sketch1.addConstraint(Sketcher.Constraint("DistanceY", -1, 1, 37, 3, 0.000203))
sketch1.addConstraint(Sketcher.Constraint("DistanceX", 43, 3, -1, 1, 0.000187))
sketch1.addConstraint(Sketcher.Constraint("DistanceX", -1, 1, 47, 3, 0.001847))
sketch1.addConstraint(Sketcher.Constraint("DistanceX", -1, 1, 55, 3, 0.000905))
sketch1.addConstraint(Sketcher.Constraint("DistanceX", -1, 1, 59, 3, 0.001847))
sketch1.addConstraint(Sketcher.Constraint("DistanceX", 63, 3, -1, 1, 0.000187))
sketch1.addConstraint(Sketcher.Constraint("DistanceY", 69, 3, -1, 1, 0.000203))
sketch1.addConstraint(Sketcher.Constraint("DistanceY", 75, 3, -1, 1, 0.000203))
sketch1.addConstraint(Sketcher.Constraint("DistanceX", 1, 2, -1, 1, 6.082515))
sketch1.addConstraint(Sketcher.Constraint("DistanceX", 3, 2, -1, 1, 3.543157))
sketch1.addConstraint(Sketcher.Constraint("DistanceY", -1, 1, 3, 2, 3.456666))
sketch1.addConstraint(Sketcher.Constraint("DistanceX", 5, 2, -1, 1, 8.350394))
sketch1.addConstraint(Sketcher.Constraint("DistanceX", 6, 2, -1, 1, 3.925726))
sketch1.addConstraint(Sketcher.Constraint("DistanceX", 9, 2, -1, 1, 9.941774))
sketch1.addConstraint(Sketcher.Constraint("DistanceX", 18, 2, -1, 1, 4.849508))
sketch1.addConstraint(Sketcher.Constraint("DistanceX", 19, 2, -1, 1, 4.616175))
sketch1.addConstraint(Sketcher.Constraint("DistanceX", 23, 2, -1, 1, 3.925726))
sketch1.addConstraint(Sketcher.Constraint("DistanceY", 23, 2, -1, 1, 3.015157))
sketch1.addConstraint(Sketcher.Constraint("DistanceX", 25, 2, -1, 1, 7.967825))
sketch1.addConstraint(Sketcher.Constraint("DistanceX", 26, 2, -1, 1, 3.543157))
sketch1.addConstraint(Sketcher.Constraint("DistanceY", 27, 2, -1, 1, 3.999027))
sketch1.addConstraint(Sketcher.Constraint("DistanceX", -1, 1, 39, 2, 6.082515))
sketch1.addConstraint(Sketcher.Constraint("DistanceX", -1, 1, 41, 2, 3.543157))
sketch1.addConstraint(Sketcher.Constraint("DistanceY", 41, 2, -1, 1, 3.456666))
sketch1.addConstraint(Sketcher.Constraint("DistanceX", -1, 1, 43, 2, 8.350394))
sketch1.addConstraint(Sketcher.Constraint("DistanceX", -1, 1, 44, 2, 3.925726))
sketch1.addConstraint(Sketcher.Constraint("DistanceX", -1, 1, 47, 2, 9.941774))
sketch1.addConstraint(Sketcher.Constraint("DistanceX", -1, 1, 56, 2, 4.849508))
sketch1.addConstraint(Sketcher.Constraint("DistanceX", -1, 1, 57, 2, 4.616175))
sketch1.addConstraint(Sketcher.Constraint("DistanceX", -1, 1, 61, 2, 3.925726))
sketch1.addConstraint(Sketcher.Constraint("DistanceY", -1, 1, 61, 2, 3.015157))
sketch1.addConstraint(Sketcher.Constraint("DistanceX", -1, 1, 63, 2, 7.967825))
sketch1.addConstraint(Sketcher.Constraint("DistanceX", -1, 1, 64, 2, 3.543157))
sketch1.addConstraint(Sketcher.Constraint("DistanceY", -1, 1, 65, 2, 3.999027))
pad1 = doc.addObject("PartDesign::Pad", "Pad")
body.addObject(pad1)
pad1.Profile = sketch1
pad1.setExpression("Length", "Params.pad1_length")

doc.recompute()
